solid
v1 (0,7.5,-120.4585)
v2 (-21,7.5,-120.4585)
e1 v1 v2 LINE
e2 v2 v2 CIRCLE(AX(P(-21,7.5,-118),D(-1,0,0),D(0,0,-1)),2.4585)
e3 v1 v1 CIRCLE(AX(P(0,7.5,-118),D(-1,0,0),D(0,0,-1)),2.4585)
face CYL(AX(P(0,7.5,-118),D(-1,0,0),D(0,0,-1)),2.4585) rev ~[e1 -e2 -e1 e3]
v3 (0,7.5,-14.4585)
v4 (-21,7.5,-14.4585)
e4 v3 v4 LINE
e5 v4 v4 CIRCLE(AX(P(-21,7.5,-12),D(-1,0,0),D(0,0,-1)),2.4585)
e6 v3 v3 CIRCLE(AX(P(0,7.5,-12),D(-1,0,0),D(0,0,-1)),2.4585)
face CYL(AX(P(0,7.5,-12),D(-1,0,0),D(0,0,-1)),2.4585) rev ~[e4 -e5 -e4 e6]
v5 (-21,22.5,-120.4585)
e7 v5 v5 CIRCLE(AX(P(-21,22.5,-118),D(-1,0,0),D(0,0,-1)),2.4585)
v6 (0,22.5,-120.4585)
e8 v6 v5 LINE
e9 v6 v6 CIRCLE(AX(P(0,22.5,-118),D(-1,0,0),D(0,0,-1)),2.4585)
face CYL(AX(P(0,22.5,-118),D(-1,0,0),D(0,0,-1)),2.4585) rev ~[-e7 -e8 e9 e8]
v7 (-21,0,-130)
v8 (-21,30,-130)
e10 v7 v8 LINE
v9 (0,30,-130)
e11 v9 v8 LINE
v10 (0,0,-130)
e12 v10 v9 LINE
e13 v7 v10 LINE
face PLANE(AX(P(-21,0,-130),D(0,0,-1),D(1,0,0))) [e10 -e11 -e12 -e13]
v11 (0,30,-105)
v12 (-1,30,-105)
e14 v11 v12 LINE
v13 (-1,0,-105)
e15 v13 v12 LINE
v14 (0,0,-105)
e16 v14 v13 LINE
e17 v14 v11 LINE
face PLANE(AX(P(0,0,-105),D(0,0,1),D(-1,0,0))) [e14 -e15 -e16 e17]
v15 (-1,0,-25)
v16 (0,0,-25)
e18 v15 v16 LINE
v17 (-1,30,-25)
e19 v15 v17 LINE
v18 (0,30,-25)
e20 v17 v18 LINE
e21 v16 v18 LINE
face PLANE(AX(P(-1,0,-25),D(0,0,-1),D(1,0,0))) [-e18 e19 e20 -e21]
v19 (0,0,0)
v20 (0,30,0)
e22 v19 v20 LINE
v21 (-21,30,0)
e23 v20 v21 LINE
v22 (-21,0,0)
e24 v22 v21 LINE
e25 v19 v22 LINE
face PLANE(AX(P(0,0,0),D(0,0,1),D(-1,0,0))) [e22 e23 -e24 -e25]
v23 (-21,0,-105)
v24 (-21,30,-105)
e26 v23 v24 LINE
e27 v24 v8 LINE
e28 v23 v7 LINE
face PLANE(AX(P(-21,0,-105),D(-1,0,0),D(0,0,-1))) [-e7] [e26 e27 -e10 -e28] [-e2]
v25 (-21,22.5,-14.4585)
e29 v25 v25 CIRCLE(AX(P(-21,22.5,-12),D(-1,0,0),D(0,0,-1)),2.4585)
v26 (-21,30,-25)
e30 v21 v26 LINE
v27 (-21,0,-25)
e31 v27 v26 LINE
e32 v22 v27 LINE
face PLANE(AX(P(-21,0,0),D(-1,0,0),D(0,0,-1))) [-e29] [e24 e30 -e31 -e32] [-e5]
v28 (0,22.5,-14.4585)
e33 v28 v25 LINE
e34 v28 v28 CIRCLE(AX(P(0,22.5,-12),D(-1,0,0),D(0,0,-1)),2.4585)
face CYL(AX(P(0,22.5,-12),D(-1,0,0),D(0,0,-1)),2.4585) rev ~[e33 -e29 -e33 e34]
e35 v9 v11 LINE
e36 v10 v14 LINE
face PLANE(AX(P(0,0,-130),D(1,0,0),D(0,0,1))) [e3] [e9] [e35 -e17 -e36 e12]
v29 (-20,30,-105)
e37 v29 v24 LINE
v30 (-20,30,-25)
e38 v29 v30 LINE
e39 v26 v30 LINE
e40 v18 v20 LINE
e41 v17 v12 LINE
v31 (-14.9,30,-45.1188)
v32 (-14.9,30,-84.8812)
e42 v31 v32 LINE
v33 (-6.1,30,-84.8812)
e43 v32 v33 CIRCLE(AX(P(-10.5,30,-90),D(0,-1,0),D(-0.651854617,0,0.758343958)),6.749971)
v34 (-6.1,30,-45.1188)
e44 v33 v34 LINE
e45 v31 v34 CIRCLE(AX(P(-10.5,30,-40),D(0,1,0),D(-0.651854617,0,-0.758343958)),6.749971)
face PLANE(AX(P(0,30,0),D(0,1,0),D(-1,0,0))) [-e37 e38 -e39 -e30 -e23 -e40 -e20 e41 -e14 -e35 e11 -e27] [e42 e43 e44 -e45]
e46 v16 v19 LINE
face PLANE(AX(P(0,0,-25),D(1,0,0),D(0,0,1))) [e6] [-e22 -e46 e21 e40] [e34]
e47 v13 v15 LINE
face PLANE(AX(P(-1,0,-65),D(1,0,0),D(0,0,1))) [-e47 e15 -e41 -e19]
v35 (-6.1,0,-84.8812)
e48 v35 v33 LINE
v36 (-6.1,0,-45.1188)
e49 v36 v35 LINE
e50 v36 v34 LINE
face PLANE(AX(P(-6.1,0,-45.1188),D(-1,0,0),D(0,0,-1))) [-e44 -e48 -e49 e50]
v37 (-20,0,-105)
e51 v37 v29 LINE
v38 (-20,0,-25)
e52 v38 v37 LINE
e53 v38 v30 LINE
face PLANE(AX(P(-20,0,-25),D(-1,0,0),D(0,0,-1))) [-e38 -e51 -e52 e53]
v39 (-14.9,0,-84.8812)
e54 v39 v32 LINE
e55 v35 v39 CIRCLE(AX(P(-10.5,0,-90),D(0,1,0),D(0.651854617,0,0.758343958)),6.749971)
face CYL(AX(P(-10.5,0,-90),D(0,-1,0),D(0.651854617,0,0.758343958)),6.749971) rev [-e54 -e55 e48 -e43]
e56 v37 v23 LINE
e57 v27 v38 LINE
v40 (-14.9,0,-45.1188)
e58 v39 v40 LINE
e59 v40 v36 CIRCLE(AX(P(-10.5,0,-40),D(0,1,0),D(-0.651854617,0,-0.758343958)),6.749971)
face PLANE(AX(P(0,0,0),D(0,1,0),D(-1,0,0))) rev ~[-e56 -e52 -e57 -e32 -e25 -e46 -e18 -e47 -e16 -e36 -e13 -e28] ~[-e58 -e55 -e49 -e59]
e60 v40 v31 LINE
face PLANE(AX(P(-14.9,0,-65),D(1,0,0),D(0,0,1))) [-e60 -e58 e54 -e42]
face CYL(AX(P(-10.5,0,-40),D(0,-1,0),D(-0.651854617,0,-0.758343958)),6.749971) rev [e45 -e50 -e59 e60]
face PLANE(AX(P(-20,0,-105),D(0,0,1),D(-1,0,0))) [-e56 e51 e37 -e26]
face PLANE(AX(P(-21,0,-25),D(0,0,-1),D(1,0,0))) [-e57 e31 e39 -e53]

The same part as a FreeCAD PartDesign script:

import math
import FreeCAD as App
import Part
import Sketcher

V = App.Vector
Q = App.Units.Quantity


def add_polygon(sketch, points):
    """Adds a closed chain of lines whose ends are joined by coincident constraints."""
    first, n = sketch.GeometryCount, len(points)
    for a, b in zip(points, points[1:] + points[:1]):
        sketch.addGeometry(Part.LineSegment(App.Vector(*a, 0), App.Vector(*b, 0)), False)
    for i in range(n):
        sketch.addConstraint(Sketcher.Constraint("Coincident", first + i, 2, first + (i + 1) % n, 1))

doc = App.newDocument("Part")
body = doc.addObject("PartDesign::Body", "Body")

# Sketch on XZ plane
sketch1 = body.newObject("Sketcher::SketchObject", "Sketch")
sketch1.AttachmentSupport = (doc.getObject("XZ_Plane"), [""])
sketch1.MapMode = "FlatFace"
add_polygon(sketch1, [(-21, 0), (0, 0), (0, -25), (-1, -25), (-1, -105), (0, -105), (0, -130), (-21, -130), (-21, -105), (-20, -105), (-20, -25), (-21, -25)])  # lines 0-11
sketch1.addGeometry(Part.LineSegment(V(-14.9, -45.1, 0), V(-14.9, -84.9, 0)), False)  # 12
sketch1.addGeometry(Part.ArcOfCircle(Part.Circle(V(-10.5, -90, 0), V(0, 0, 1), 6.7), math.radians(131), math.radians(409)), False)  # 13
sketch1.addGeometry(Part.LineSegment(V(-6.1, -84.9, 0), V(-6.1, -45.1, 0)), False)  # 14
sketch1.addGeometry(Part.ArcOfCircle(Part.Circle(V(-10.5, -40, 0), V(0, 0, 1), 6.7), math.radians(-49), math.radians(229)), False)  # 15
sketch1.addConstraint([
    Sketcher.Constraint("Coincident", 12, 2, 13, 1),
    Sketcher.Constraint("Coincident", 13, 2, 14, 1),
    Sketcher.Constraint("Coincident", 14, 2, 15, 1),
    Sketcher.Constraint("Coincident", 15, 2, 12, 1),
    Sketcher.Constraint("Horizontal", 0),
    Sketcher.Constraint("Vertical", 1),
    Sketcher.Constraint("Horizontal", 2),
    Sketcher.Constraint("Vertical", 3),
    Sketcher.Constraint("Horizontal", 4),
    Sketcher.Constraint("Vertical", 5),
    Sketcher.Constraint("Horizontal", 6),
    Sketcher.Constraint("Vertical", 7),
    Sketcher.Constraint("Horizontal", 8),
    Sketcher.Constraint("Vertical", 9),
    Sketcher.Constraint("Horizontal", 10),
    Sketcher.Constraint("Vertical", 11),
    Sketcher.Constraint("Vertical", 12),
    Sketcher.Constraint("Vertical", 14),
    Sketcher.Constraint("Coincident", 0, 2, -1, 1),
    Sketcher.Constraint("Equal", 13, 15),
    Sketcher.Constraint("PointOnObject", 4, 2, -2),
    Sketcher.Constraint("Horizontal", 4, 2, 7, 2),
    Sketcher.Constraint("Horizontal", 2, 2, 9, 2),
    Sketcher.Constraint("Horizontal", 12, 2, 13, 2),
    Sketcher.Constraint("Horizontal", 14, 2, 15, 2),
    Sketcher.Constraint("Vertical", 7, 2, 10, 2),
    Sketcher.Constraint("Equal", 4, 8),
    Sketcher.Constraint("Equal", 1, 5),
    Sketcher.Constraint("DistanceX", 0, 1, 0, 2, Q("21 mm")),
    Sketcher.Constraint("DistanceX", 2, 2, 2, 1, Q("1 mm")),
    Sketcher.Constraint("DistanceY", 1, 2, 1, 1, Q("25 mm")),
    Sketcher.Constraint("DistanceY", 3, 2, 3, 1, Q("80 mm")),
    Sketcher.Constraint("Radius", 13, Q("6.75 mm")),
    Sketcher.Constraint("DistanceY", 13, 3, 15, 3, Q("50 mm")),
    Sketcher.Constraint("DistanceX", 12, 2, 13, 3, Q("4.4 mm")),
    Sketcher.Constraint("DistanceY", 13, 3, -1, 1, Q("90 mm")),
    Sketcher.Constraint("DistanceX", 13, 3, -1, 1, Q("10.5 mm")),
])
pad1 = body.newObject("PartDesign::Pad", "Pad")
pad1.Profile = sketch1
pad1.Length = 30
pad1.Reversed = True

# Sketch on YZ plane
sketch2 = body.newObject("Sketcher::SketchObject", "Sketch001")
sketch2.AttachmentSupport = (doc.getObject("YZ_Plane"), [""])
sketch2.MapMode = "FlatFace"
sketch2.addGeometry([
    Part.Circle(V(22.5, -12, 0), V(0, 0, 1), 2.5),
    Part.Circle(V(7.5, -12, 0), V(0, 0, 1), 2.5),
    Part.Circle(V(22.5, -118, 0), V(0, 0, 1), 2.5),
    Part.Circle(V(7.5, -118, 0), V(0, 0, 1), 2.5),
], False)
sketch2.addConstraint([
    Sketcher.Constraint("Equal", 0, 1),
    Sketcher.Constraint("Equal", 1, 2),
    Sketcher.Constraint("Equal", 2, 3),
    Sketcher.Constraint("Horizontal", 0, 3, 1, 3),
    Sketcher.Constraint("Horizontal", 2, 3, 3, 3),
    Sketcher.Constraint("Vertical", 0, 3, 2, 3),
    Sketcher.Constraint("Vertical", 1, 3, 3, 3),
    Sketcher.Constraint("Diameter", 0, Q("4.917 mm")),
    Sketcher.Constraint("DistanceY", 0, 3, -1, 1, Q("12 mm")),
    Sketcher.Constraint("DistanceY", 2, 3, -1, 1, Q("118 mm")),
    Sketcher.Constraint("DistanceX", 1, 3, 0, 3, Q("15 mm")),
    Sketcher.Constraint("DistanceX", -1, 1, 0, 3, Q("22.5 mm")),
])
doc.recompute()
hole = body.newObject("PartDesign::Hole", "Hole")
hole.Profile = sketch2
hole.ThreadType = "None"
hole.Diameter = 4.917
hole.DepthType = "ThroughAll"

doc.recompute()
